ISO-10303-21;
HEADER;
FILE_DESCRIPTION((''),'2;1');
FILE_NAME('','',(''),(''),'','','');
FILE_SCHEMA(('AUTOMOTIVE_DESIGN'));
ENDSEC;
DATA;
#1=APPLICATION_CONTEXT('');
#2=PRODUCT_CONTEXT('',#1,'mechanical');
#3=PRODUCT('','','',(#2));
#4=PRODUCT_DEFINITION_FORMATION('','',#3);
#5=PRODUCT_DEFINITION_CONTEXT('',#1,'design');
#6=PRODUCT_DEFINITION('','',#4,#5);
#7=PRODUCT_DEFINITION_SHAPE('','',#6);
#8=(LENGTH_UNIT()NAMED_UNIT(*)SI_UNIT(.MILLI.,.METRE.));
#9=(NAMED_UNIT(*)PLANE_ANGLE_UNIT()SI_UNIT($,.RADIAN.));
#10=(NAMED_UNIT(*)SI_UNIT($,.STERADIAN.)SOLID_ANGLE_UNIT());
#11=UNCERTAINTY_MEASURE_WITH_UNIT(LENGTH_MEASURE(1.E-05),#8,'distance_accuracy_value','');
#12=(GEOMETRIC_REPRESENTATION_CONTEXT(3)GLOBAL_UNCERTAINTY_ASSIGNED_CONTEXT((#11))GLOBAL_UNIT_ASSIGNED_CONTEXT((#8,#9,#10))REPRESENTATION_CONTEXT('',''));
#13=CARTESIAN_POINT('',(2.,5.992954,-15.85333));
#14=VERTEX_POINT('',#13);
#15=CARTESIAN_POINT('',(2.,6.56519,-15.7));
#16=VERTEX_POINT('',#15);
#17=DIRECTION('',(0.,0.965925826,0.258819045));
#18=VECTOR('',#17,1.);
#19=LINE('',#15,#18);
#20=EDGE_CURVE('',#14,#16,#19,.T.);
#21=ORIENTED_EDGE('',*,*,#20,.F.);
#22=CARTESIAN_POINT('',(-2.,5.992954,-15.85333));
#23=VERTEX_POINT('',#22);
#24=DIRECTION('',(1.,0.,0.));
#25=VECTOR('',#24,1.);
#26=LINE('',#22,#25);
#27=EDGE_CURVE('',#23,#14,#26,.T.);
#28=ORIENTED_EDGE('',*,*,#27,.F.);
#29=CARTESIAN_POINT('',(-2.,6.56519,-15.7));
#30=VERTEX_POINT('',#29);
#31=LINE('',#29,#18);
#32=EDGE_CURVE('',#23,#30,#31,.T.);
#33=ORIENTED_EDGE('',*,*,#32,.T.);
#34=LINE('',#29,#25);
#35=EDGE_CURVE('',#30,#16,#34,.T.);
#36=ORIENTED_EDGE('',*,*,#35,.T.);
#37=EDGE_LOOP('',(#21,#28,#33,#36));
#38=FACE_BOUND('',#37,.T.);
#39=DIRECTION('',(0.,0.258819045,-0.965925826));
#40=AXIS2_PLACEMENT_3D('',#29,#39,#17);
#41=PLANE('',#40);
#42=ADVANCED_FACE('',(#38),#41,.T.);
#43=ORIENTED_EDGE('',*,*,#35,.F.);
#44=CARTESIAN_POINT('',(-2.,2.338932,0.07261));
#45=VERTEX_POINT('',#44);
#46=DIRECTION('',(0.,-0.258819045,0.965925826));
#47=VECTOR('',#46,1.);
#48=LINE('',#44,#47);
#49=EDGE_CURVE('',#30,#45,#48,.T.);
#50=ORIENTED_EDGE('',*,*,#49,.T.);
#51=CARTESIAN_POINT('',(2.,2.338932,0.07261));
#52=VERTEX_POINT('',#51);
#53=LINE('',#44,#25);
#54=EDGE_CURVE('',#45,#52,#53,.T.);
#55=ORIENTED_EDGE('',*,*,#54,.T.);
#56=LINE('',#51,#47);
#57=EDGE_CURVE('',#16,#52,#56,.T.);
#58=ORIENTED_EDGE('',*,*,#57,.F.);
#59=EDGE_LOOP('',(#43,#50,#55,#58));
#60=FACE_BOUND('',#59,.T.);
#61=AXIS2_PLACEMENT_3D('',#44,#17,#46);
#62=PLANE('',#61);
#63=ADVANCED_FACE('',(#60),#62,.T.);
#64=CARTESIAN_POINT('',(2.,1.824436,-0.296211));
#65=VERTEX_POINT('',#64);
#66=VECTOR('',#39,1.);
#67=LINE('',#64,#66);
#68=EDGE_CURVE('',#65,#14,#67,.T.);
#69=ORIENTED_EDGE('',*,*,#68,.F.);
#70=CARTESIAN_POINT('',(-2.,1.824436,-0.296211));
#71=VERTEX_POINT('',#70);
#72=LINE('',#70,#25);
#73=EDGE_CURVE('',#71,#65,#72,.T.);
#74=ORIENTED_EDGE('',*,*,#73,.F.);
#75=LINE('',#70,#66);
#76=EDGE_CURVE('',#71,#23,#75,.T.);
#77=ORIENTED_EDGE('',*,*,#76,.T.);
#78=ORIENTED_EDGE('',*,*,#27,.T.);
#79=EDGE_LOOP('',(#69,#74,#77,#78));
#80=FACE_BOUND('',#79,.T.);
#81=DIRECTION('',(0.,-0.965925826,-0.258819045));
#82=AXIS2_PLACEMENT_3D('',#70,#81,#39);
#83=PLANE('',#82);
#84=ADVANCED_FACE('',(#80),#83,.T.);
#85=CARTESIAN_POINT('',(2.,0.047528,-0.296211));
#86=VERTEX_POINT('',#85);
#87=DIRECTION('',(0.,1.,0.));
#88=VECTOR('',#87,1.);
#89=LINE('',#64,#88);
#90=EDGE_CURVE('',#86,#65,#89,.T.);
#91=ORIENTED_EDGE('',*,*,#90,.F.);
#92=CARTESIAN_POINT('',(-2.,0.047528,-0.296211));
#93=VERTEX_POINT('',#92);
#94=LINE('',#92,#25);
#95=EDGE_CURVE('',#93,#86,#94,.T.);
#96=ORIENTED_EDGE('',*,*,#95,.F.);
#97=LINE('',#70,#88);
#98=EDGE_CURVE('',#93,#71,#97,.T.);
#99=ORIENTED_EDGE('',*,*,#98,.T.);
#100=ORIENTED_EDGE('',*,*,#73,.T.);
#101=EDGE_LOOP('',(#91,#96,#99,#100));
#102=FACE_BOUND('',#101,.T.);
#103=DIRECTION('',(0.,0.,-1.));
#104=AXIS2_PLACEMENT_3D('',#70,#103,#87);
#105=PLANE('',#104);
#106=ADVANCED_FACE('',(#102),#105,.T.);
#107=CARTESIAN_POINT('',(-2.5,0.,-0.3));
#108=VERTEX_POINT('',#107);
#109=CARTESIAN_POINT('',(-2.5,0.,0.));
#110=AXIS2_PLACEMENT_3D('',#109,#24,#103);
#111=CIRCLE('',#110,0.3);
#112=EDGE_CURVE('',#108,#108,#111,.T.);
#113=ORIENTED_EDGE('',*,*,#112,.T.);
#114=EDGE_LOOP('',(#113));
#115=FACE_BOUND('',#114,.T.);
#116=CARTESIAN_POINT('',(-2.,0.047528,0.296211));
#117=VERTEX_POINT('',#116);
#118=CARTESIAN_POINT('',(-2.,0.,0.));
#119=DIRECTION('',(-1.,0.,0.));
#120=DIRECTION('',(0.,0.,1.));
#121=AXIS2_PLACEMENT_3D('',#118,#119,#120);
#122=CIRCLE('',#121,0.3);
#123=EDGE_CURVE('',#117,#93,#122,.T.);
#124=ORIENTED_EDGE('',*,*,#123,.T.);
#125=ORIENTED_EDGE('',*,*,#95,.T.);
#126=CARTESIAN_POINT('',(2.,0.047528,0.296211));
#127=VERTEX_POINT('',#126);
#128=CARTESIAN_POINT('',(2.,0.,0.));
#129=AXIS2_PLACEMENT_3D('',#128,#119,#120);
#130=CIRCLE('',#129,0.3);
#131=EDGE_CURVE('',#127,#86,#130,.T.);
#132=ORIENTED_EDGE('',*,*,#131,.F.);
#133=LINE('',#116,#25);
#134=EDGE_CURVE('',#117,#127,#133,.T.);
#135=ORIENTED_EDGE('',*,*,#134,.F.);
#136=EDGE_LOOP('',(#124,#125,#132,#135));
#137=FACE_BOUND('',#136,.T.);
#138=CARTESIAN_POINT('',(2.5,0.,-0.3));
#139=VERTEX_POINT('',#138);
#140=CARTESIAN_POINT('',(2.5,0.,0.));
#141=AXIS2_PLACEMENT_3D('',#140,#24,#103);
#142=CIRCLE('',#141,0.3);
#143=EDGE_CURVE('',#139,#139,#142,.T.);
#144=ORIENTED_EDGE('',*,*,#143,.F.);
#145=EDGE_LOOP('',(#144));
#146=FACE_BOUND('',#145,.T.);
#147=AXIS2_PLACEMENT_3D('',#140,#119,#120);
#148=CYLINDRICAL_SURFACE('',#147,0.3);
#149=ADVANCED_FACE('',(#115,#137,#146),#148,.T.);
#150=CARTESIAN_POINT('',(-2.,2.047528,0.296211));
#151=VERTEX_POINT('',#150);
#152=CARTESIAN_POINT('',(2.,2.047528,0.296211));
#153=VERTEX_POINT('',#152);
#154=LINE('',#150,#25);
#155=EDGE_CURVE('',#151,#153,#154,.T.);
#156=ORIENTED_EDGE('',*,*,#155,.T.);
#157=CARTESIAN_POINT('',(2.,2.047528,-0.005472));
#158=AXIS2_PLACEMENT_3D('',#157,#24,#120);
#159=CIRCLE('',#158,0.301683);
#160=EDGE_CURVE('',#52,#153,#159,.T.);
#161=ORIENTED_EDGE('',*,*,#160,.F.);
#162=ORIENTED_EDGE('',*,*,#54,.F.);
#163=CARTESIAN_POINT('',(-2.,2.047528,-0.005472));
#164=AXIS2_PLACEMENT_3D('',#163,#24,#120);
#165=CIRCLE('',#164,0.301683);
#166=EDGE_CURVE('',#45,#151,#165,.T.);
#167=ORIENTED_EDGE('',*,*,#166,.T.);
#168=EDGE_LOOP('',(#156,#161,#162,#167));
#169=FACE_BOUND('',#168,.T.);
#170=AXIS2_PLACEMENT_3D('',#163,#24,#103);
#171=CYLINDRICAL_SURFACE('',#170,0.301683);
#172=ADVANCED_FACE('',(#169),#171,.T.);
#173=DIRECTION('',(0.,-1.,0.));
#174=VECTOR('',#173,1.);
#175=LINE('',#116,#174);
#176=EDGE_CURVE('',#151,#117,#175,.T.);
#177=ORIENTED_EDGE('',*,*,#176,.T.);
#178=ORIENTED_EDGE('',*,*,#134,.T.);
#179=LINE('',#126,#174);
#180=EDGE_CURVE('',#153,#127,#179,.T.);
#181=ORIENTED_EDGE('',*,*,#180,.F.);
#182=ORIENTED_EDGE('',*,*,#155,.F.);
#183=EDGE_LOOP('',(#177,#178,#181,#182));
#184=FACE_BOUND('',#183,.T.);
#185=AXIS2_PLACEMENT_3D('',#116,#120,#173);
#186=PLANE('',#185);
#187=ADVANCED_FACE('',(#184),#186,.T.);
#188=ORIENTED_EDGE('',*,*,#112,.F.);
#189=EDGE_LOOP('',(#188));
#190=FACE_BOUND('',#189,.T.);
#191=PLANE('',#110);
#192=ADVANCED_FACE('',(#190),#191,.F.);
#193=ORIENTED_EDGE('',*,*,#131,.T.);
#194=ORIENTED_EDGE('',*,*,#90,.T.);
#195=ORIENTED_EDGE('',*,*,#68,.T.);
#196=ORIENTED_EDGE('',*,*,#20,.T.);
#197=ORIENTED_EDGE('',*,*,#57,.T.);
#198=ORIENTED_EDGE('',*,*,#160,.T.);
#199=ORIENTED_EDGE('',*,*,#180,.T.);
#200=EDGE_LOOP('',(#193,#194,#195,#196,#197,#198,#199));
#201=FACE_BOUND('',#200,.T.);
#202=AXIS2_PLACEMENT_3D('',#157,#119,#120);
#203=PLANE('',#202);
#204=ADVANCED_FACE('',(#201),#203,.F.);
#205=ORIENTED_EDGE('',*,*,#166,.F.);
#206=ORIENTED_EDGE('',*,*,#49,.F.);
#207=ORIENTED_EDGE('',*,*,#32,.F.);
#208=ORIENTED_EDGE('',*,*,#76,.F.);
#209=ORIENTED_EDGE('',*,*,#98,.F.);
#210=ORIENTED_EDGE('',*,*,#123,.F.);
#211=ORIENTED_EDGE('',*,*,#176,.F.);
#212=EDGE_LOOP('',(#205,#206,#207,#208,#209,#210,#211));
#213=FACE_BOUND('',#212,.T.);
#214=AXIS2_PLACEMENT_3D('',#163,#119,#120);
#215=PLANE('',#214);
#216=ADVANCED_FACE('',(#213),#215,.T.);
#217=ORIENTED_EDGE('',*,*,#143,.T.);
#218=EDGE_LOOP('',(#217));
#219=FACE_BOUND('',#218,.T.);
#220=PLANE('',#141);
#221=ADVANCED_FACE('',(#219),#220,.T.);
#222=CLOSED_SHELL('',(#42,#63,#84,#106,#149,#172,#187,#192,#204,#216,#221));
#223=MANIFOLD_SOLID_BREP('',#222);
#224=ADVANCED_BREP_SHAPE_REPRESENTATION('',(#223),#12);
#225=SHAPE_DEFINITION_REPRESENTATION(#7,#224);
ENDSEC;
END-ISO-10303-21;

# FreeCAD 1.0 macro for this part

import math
import FreeCAD as App
import Part
import Sketcher

V = App.Vector
Q = App.Units.Quantity

doc = App.newDocument("Part")
body = doc.addObject("PartDesign::Body", "Body")

# Sketch on YZ plane
sketch1 = body.newObject("Sketcher::SketchObject", "Sketch")
sketch1.AttachmentSupport = (doc.getObject("YZ_Plane"), [""])
sketch1.MapMode = "FlatFace"
sketch1.addGeometry(Part.Circle(V(0, 0, 0), V(0, 0, 1), 0.3), False)
sketch1.addConstraint(Sketcher.Constraint("Coincident", 0, 3, -1, 1))
sketch1.addConstraint(Sketcher.Constraint("Diameter", 0, Q("0.6 mm")))
pad1 = body.newObject("PartDesign::Pad", "Pad")
pad1.Profile = sketch1
pad1.Length = 5
pad1.Midplane = True

# Sketch on YZ plane
sketch2 = body.newObject("Sketcher::SketchObject", "Sketch001")
sketch2.AttachmentSupport = (doc.getObject("YZ_Plane"), [""])
sketch2.MapMode = "FlatFace"
sketch2.addGeometry(Part.LineSegment(V(2.05, 0.3, 0), V(0.05, 0.3, 0)), False)
sketch2.addGeometry(Part.LineSegment(V(0.05, 0.3, 0), V(0.05, -0.3, 0)), False)
sketch2.addGeometry(Part.LineSegment(V(0.05, -0.3, 0), V(1.82, -0.3, 0)), False)
sketch2.addGeometry(Part.LineSegment(V(1.82, -0.3, 0), V(5.99, -15.85, 0)), False)
sketch2.addGeometry(Part.LineSegment(V(5.99, -15.85, 0), V(6.57, -15.7, 0)), False)
sketch2.addGeometry(Part.LineSegment(V(6.57, -15.7, 0), V(2.34, 0.07, 0)), False)
sketch2.addGeometry(Part.ArcOfCircle(Part.Circle(V(2.05, -0.01, 0), V(0, 0, 1), 0.3), math.radians(15), math.radians(90)), False)
sketch2.addConstraint(Sketcher.Constraint("Coincident", 0, 2, 1, 1))
sketch2.addConstraint(Sketcher.Constraint("Coincident", 1, 2, 2, 1))
sketch2.addConstraint(Sketcher.Constraint("Coincident", 2, 2, 3, 1))
sketch2.addConstraint(Sketcher.Constraint("Coincident", 3, 2, 4, 1))
sketch2.addConstraint(Sketcher.Constraint("Coincident", 4, 2, 5, 1))
sketch2.addConstraint(Sketcher.Constraint("Tangent", 5, 2, 6, 1))
sketch2.addConstraint(Sketcher.Constraint("Tangent", 6, 2, 0, 1))
sketch2.addConstraint(Sketcher.Constraint("Horizontal", 0))
sketch2.addConstraint(Sketcher.Constraint("Vertical", 1))
sketch2.addConstraint(Sketcher.Constraint("Horizontal", 2))
sketch2.addConstraint(Sketcher.Constraint("Perpendicular", 3, 4))
sketch2.addConstraint(Sketcher.Constraint("Perpendicular", 4, 5))
sketch2.addConstraint(Sketcher.Constraint("DistanceX", 0, 2, 0, 1, Q("2 mm")))
sketch2.addConstraint(Sketcher.Constraint("Angle", 3, Q("-75 deg")))
sketch2.addConstraint(Sketcher.Constraint("DistanceY", 4, 2, -1, 1, Q("15.7 mm")))
sketch2.addConstraint(Sketcher.Constraint("Radius", 6, Q("0.301683 mm")))
sketch2.addConstraint(Sketcher.Constraint("DistanceX", 2, 1, 2, 2, Q("1.776908 mm")))
sketch2.addConstraint(Sketcher.Constraint("DistanceY", 1, 2, 1, 1, Q("0.592422 mm")))
sketch2.addConstraint(Sketcher.Constraint("DistanceX", -1, 1, 6, 3, Q("2.047528 mm")))
sketch2.addConstraint(Sketcher.Constraint("DistanceY", 6, 3, -1, 1, Q("0.005472 mm")))
pad2 = body.newObject("PartDesign::Pad", "Pad001")
pad2.Profile = sketch2
pad2.Type = "TwoLengths"
pad2.Length = 2
pad2.Length2 = 2

doc.recompute()
